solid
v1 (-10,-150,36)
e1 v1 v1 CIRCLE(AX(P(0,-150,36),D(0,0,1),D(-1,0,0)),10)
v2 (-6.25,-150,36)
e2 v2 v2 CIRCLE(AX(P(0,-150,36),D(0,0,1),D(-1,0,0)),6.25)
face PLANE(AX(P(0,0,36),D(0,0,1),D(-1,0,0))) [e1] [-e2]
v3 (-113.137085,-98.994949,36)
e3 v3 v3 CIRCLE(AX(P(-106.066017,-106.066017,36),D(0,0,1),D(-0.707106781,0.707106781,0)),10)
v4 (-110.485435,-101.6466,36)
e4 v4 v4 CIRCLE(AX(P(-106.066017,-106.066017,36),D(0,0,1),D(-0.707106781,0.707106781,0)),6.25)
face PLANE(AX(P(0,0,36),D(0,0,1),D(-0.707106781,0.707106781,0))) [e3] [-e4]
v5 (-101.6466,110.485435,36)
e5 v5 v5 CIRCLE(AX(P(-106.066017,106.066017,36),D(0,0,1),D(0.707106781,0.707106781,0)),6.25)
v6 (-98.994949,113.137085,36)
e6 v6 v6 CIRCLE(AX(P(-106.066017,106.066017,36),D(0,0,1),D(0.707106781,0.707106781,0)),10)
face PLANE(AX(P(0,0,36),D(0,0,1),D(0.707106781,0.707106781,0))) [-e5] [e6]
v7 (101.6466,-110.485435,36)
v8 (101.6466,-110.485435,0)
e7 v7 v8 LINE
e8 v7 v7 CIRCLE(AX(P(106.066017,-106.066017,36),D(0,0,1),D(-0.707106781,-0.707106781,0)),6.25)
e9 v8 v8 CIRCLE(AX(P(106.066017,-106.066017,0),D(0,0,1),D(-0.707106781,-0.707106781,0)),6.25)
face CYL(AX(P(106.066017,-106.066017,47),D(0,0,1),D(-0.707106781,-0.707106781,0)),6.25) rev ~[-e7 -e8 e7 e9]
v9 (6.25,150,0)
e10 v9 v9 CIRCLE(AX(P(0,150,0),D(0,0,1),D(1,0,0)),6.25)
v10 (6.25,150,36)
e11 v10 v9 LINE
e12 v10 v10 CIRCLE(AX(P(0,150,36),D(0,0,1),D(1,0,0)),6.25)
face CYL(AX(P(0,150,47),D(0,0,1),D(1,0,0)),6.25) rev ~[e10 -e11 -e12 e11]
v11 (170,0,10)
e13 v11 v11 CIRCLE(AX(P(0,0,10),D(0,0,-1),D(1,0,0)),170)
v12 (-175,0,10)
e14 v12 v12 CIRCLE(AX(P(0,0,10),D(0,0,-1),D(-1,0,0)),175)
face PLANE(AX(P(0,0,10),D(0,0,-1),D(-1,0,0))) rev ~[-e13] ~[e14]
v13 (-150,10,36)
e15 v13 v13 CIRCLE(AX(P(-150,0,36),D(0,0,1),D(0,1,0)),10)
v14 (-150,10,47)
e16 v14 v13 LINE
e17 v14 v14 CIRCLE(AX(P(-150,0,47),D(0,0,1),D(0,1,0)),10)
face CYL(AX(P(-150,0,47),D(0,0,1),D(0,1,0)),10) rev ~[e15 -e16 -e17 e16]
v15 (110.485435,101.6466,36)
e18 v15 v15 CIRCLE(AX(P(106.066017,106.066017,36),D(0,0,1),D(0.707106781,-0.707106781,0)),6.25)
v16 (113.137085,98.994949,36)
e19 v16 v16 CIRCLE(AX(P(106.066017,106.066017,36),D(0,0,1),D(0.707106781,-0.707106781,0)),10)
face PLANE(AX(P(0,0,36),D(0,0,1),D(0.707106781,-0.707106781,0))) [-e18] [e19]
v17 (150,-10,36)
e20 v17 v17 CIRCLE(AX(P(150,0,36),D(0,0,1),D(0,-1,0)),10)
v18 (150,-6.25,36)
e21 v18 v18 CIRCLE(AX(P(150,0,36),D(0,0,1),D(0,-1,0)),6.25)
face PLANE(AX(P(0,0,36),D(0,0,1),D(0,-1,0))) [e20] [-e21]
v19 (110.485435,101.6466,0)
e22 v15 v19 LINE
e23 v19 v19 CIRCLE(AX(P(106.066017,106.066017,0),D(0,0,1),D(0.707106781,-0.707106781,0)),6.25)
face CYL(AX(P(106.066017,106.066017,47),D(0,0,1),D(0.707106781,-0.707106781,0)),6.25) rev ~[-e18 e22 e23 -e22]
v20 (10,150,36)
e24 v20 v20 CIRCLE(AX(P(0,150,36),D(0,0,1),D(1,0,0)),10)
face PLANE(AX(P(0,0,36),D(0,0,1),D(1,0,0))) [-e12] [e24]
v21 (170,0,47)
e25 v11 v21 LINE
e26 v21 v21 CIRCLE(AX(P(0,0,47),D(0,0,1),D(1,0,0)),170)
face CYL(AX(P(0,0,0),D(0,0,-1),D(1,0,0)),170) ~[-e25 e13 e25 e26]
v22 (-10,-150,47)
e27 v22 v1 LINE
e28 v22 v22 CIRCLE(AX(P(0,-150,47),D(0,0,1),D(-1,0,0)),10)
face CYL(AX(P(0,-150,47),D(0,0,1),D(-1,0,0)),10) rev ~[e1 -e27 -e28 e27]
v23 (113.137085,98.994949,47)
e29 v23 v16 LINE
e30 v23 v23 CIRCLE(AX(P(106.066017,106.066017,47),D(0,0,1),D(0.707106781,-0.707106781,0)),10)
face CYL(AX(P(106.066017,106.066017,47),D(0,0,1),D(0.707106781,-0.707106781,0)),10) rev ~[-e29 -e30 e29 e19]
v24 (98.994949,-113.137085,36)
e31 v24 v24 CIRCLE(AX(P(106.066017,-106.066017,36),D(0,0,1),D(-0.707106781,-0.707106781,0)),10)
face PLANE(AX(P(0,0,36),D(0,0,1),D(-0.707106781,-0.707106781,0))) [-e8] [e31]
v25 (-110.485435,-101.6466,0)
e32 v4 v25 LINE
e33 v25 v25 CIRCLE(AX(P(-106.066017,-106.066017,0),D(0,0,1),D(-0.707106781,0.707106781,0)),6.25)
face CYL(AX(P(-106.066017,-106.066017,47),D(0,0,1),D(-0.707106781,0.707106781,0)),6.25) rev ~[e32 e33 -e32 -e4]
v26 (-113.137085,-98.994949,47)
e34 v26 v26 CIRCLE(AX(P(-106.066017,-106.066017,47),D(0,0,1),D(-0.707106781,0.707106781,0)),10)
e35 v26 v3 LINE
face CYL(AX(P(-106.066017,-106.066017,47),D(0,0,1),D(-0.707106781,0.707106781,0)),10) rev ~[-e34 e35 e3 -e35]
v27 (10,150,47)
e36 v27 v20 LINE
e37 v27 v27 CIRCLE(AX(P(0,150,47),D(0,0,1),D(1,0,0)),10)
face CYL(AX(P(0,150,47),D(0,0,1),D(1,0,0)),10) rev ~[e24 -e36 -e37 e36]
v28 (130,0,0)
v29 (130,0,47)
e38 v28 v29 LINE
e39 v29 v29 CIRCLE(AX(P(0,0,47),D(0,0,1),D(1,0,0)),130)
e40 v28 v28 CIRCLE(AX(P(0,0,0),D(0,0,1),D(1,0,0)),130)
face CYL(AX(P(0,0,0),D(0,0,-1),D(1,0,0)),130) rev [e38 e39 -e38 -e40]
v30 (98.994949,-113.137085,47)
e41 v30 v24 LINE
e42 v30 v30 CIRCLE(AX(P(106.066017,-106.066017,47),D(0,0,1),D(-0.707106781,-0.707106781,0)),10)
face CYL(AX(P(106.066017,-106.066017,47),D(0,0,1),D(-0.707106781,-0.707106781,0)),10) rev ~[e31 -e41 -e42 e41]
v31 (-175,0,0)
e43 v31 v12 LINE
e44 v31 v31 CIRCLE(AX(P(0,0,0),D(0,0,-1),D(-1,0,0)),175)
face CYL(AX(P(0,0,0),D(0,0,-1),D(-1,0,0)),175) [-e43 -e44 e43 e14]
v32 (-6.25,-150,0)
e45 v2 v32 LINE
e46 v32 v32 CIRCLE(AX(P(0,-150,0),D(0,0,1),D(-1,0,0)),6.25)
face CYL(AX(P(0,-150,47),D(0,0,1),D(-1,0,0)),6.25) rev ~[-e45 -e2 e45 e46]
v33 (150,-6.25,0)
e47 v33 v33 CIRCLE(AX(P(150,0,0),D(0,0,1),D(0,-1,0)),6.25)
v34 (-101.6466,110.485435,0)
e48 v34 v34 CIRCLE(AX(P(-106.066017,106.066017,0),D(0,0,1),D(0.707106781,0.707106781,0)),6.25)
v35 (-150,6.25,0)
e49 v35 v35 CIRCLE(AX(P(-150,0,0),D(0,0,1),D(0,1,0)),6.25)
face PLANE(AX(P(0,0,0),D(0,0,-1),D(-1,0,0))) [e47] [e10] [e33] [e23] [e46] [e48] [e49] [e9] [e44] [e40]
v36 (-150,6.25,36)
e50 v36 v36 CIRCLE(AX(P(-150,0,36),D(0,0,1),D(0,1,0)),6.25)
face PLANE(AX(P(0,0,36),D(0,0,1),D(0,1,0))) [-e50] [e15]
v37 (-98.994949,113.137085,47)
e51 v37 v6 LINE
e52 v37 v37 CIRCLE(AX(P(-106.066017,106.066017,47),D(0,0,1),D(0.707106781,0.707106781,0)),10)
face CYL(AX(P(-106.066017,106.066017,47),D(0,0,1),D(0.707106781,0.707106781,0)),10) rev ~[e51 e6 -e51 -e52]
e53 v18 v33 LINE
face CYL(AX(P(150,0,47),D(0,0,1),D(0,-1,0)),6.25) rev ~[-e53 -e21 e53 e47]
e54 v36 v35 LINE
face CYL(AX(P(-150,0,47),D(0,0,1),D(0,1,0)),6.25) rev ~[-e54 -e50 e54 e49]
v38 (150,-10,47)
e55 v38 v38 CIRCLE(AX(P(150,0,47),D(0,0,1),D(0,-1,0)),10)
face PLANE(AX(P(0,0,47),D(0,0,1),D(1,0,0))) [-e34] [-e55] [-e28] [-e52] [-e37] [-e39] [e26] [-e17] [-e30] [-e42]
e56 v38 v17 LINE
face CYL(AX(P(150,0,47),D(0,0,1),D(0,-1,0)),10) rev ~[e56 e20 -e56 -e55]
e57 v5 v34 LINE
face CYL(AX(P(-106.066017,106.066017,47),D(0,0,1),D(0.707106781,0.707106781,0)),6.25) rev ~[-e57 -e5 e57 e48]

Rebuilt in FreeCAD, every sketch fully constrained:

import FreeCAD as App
import Part
import Sketcher
Q = App.Units.Quantity

doc = App.newDocument("Part")
params = doc.addObject("Spreadsheet::Sheet", "Params")
for row, (alias, value) in enumerate([
    ("sketch1_diameter", "260 mm"),
    ("sketch1_diameter2", "340 mm"),
    ("pad1_length", "47 mm"),
    ("sketch2_diameter", "12.5 mm"),
    ("sketch3_diameter", "20 mm"),
    ("sketch3_diameter2", "12.5 mm"),
    ("pocket2_length", "11 mm"),
    ("sketch4_diameter", "350 mm"),
    ("sketch4_diameter2", "340 mm"),
    ("pad2_length", "10 mm"),
], start=1):
    params.set(f"A{row}", alias)
    params.set(f"B{row}", "=" + value)
    params.setAlias(f"B{row}", alias)

body = doc.addObject("PartDesign::Body", "Body")

sketch1 = body.newObject("Sketcher::SketchObject", "Sketch")
sketch1.AttachmentSupport = (doc.getObject("XY_Plane"), [""])
sketch1.MapMode = "FlatFace"
sketch1.addGeometry(Part.Circle(App.Vector(0, 0, 0), App.Vector(0, 0, 1), 170), False)
sketch1.addGeometry(Part.Circle(App.Vector(0, 0, 0), App.Vector(0, 0, 1), 130), False)
sketch1.addConstraint(Sketcher.Constraint("Coincident", 0, 3, -1, 1))
sketch1.addConstraint(Sketcher.Constraint("Coincident", 1, 3, -1, 1))
sketch1.addConstraint(Sketcher.Constraint("Diameter", 1, Q("260 mm")))
sketch1.addConstraint(Sketcher.Constraint("Diameter", 0, Q("340 mm")))
sketch1.setExpression("Constraints[2]", "Params.sketch1_diameter")
sketch1.setExpression("Constraints[3]", "Params.sketch1_diameter2")
pad1 = body.newObject("PartDesign::Pad", "Pad")
pad1.Profile = sketch1
pad1.setExpression("Length", "Params.pad1_length")

sketch2 = body.newObject("Sketcher::SketchObject", "Sketch001")
sketch2.AttachmentSupport = (doc.getObject("XY_Plane"), [""])
sketch2.MapMode = "FlatFace"
sketch2.AttachmentOffset = App.Placement(App.Vector(0, 0, 47), App.Rotation())
sketch2.addGeometry(Part.Circle(App.Vector(0, 150, 0), App.Vector(0, 0, 1), 6), False)
sketch2.addConstraint(Sketcher.Constraint("PointOnObject", 0, 3, -2))
sketch2.addConstraint(Sketcher.Constraint("Diameter", 0, Q("12.5 mm")))
sketch2.addConstraint(Sketcher.Constraint("DistanceY", -1, 1, 0, 3, Q("150 mm")))
sketch2.setExpression("Constraints[1]", "Params.sketch2_diameter")
pocket1 = body.newObject("PartDesign::Pocket", "Pocket")
pocket1.Profile = sketch2
pocket1.Type = "ThroughAll"

sketch3 = body.newObject("Sketcher::SketchObject", "Sketch002")
sketch3.AttachmentSupport = (doc.getObject("XY_Plane"), [""])
sketch3.MapMode = "FlatFace"
sketch3.AttachmentOffset = App.Placement(App.Vector(0, 0, 47), App.Rotation())
sketch3.addGeometry(Part.Circle(App.Vector(0, 150, 0), App.Vector(0, 0, 1), 10), False)
sketch3.addGeometry(Part.Circle(App.Vector(0, 150, 0), App.Vector(0, 0, 1), 6), False)
sketch3.addConstraint(Sketcher.Constraint("Coincident", 1, 3, 0, 3))
sketch3.addConstraint(Sketcher.Constraint("PointOnObject", 0, 3, -2))
sketch3.addConstraint(Sketcher.Constraint("Diameter", 0, Q("20 mm")))
sketch3.addConstraint(Sketcher.Constraint("Diameter", 1, Q("12.5 mm")))
sketch3.addConstraint(Sketcher.Constraint("DistanceY", -1, 1, 0, 3, Q("150 mm")))
sketch3.setExpression("Constraints[2]", "Params.sketch3_diameter")
sketch3.setExpression("Constraints[3]", "Params.sketch3_diameter2")
pocket2 = body.newObject("PartDesign::Pocket", "Pocket001")
pocket2.Profile = sketch3
pocket2.setExpression("Length", "Params.pocket2_length")
doc.recompute()

polarpattern = body.newObject("PartDesign::PolarPattern", "PolarPattern")
polarpattern.Originals = [pocket1, pocket2]
polarpattern.Axis = (doc.getObject("Z_Axis"), [""])
polarpattern.Angle = 360
polarpattern.Occurrences = 8
body.Tip = polarpattern

sketch4 = body.newObject("Sketcher::SketchObject", "Sketch003")
sketch4.AttachmentSupport = (doc.getObject("XY_Plane"), [""])
sketch4.MapMode = "FlatFace"
sketch4.addGeometry(Part.Circle(App.Vector(0, 0, 0), App.Vector(0, 0, 1), 175), False)
sketch4.addGeometry(Part.Circle(App.Vector(0, 0, 0), App.Vector(0, 0, 1), 170), False)
sketch4.addConstraint(Sketcher.Constraint("Coincident", 0, 3, -1, 1))
sketch4.addConstraint(Sketcher.Constraint("Coincident", 1, 3, -1, 1))
sketch4.addConstraint(Sketcher.Constraint("Diameter", 0, Q("350 mm")))
sketch4.addConstraint(Sketcher.Constraint("Diameter", 1, Q("340 mm")))
sketch4.setExpression("Constraints[2]", "Params.sketch4_diameter")
sketch4.setExpression("Constraints[3]", "Params.sketch4_diameter2")
pad2 = body.newObject("PartDesign::Pad", "Pad001")
pad2.Profile = sketch4
pad2.setExpression("Length", "Params.pad2_length")

doc.recompute()
